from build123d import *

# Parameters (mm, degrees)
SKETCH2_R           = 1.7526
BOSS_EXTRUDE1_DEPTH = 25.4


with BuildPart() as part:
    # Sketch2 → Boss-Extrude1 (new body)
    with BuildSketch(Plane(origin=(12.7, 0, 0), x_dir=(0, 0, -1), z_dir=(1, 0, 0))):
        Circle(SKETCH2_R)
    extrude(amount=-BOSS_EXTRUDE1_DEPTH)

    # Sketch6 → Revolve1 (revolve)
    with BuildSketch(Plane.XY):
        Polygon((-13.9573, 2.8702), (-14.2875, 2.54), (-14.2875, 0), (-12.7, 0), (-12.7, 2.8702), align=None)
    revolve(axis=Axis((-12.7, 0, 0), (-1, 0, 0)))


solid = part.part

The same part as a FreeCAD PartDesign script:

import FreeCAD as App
import Part
import Sketcher
Q = App.Units.Quantity


def add_polygon(sketch, points):
    """Adds a closed chain of lines whose ends are joined by coincident constraints."""
    first, n = sketch.GeometryCount, len(points)
    for a, b in zip(points, points[1:] + points[:1]):
        sketch.addGeometry(Part.LineSegment(App.Vector(*a, 0), App.Vector(*b, 0)), False)
    for i in range(n):
        sketch.addConstraint(Sketcher.Constraint("Coincident", first + i, 2, first + (i + 1) % n, 1))

doc = App.newDocument("Part")
body = doc.addObject("PartDesign::Body", "Body")

sketch1 = body.newObject("Sketcher::SketchObject", "Sketch")
sketch1.AttachmentSupport = (doc.getObject("YZ_Plane"), [""])
sketch1.MapMode = "FlatFace"
sketch1.AttachmentOffset = App.Placement(App.Vector(0, 0, 0.5 * 25.4), App.Rotation())
sketch1.addGeometry(Part.Circle(App.Vector(0, 0, 0), App.Vector(0, 0, 1), 1.7526), False)
sketch1.addConstraint(Sketcher.Constraint("Coincident", 0, 3, -1, 1))
sketch1.addConstraint(Sketcher.Constraint("Diameter", 0, Q("0.138 in")))
pad1 = body.newObject("PartDesign::Pad", "Pad")
pad1.Profile = sketch1
pad1.Length = Q("1 in")
pad1.Reversed = True

sketch2 = body.newObject("Sketcher::SketchObject", "Sketch001")
sketch2.AttachmentSupport = (doc.getObject("XY_Plane"), [""])
sketch2.MapMode = "FlatFace"
add_polygon(sketch2, [(-13.9573, 2.8702), (-14.2875, 2.54), (-14.2875, 0), (-12.7, 0), (-12.7, 2.8702)])
sketch2.addConstraint(Sketcher.Constraint("Vertical", 1))
sketch2.addConstraint(Sketcher.Constraint("Horizontal", 2))
sketch2.addConstraint(Sketcher.Constraint("Vertical", 3))
sketch2.addConstraint(Sketcher.Constraint("Horizontal", 4))
sketch2.addConstraint(Sketcher.Constraint("PointOnObject", 1, 2, -1))
sketch2.addConstraint(Sketcher.Constraint("DistanceY", 1, 2, 1, 1, Q("0.1 in")))
sketch2.addConstraint(Sketcher.Constraint("Angle", 0, Q("-135 deg")))
sketch2.addConstraint(Sketcher.Constraint("DistanceX", 2, 2, -1, 1, Q("0.5 in")))
sketch2.addConstraint(Sketcher.Constraint("DistanceX", 2, 1, 2, 2, Q("0.0625 in")))
sketch2.addConstraint(Sketcher.Constraint("DistanceY", 3, 1, 3, 2, Q("0.113 in")))
revolution = body.newObject("PartDesign::Revolution", "Revolution")
revolution.Profile = sketch2
revolution.ReferenceAxis = (sketch2, ["H_Axis"])
revolution.Angle = 360

doc.recompute()
